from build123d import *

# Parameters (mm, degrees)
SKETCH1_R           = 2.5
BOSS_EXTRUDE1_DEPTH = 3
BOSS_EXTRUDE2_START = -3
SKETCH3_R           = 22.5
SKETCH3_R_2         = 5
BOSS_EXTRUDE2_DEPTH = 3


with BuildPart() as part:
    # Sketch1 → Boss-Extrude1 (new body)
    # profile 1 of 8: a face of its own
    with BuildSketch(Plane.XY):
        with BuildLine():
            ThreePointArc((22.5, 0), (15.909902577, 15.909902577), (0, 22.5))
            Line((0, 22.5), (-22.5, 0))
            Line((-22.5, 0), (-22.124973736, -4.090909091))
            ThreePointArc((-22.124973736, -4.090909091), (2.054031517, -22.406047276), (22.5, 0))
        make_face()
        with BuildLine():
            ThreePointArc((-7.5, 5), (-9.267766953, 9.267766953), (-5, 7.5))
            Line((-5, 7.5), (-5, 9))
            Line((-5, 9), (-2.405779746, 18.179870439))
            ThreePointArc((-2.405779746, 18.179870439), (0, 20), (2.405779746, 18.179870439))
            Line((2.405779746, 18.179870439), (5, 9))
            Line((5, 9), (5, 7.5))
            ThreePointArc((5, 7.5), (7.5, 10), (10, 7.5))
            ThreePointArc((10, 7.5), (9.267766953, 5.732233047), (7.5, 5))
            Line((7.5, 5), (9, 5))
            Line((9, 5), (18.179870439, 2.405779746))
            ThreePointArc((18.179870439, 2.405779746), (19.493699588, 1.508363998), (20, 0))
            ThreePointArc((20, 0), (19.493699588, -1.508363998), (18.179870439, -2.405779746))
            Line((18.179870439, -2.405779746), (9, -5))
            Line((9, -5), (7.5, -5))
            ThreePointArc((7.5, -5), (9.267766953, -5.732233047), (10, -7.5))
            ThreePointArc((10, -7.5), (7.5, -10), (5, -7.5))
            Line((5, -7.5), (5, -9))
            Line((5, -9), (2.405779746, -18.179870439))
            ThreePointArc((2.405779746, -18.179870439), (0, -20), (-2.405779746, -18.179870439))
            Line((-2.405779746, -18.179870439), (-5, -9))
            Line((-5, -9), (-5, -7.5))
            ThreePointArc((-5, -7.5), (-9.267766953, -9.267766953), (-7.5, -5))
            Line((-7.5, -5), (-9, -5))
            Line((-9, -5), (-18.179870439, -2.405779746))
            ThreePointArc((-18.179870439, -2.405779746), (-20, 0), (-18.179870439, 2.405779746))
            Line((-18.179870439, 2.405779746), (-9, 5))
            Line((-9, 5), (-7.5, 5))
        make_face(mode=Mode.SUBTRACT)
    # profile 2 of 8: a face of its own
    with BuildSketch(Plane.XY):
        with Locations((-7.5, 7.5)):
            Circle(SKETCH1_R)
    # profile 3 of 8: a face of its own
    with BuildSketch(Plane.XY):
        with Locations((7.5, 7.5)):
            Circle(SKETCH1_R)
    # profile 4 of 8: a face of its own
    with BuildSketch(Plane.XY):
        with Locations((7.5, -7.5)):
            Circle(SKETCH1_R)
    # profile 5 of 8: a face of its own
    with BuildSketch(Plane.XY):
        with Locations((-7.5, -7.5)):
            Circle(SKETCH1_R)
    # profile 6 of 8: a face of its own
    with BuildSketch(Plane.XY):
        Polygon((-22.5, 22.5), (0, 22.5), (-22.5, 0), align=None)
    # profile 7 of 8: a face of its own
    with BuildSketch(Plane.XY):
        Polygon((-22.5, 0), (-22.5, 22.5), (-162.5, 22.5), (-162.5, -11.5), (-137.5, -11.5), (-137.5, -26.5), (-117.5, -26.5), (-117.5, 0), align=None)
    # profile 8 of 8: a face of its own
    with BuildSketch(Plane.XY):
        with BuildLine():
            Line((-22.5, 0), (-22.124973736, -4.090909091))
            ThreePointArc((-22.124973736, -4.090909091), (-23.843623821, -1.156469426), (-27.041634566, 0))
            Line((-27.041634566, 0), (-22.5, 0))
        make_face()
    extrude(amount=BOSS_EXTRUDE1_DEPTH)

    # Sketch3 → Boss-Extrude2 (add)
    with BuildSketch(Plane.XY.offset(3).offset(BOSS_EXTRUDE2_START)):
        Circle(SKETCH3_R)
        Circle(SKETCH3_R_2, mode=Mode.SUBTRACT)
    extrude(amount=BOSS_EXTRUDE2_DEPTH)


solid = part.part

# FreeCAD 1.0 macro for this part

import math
import FreeCAD as App
import Part
import Sketcher
from FreeCAD import Vector
Q = App.Units.Quantity

doc = App.newDocument("Part")
body = doc.addObject("PartDesign::Body", "Body")

# Sketch on XY plane
sketch1 = body.newObject("Sketcher::SketchObject", "Sketch")
sketch1.AttachmentSupport = (doc.getObject("XY_Plane"), [""])
sketch1.MapMode = "FlatFace"
sketch1.addGeometry([
    Part.ArcOfCircle(Part.Circle(Vector(0, 0, 0), Vector(0, 0, 1), 22.5), math.radians(0), math.radians(90)),  # 0
    Part.LineSegment(Vector(0, 22.5, 0), Vector(-162.5, 22.5, 0)),  # 1
    Part.LineSegment(Vector(-162.5, 22.5, 0), Vector(-162.5, -11.5, 0)),  # 2
    Part.LineSegment(Vector(-162.5, -11.5, 0), Vector(-137.5, -11.5, 0)),  # 3
    Part.LineSegment(Vector(-137.5, -11.5, 0), Vector(-137.5, -26.5, 0)),  # 4
    Part.LineSegment(Vector(-137.5, -26.5, 0), Vector(-117.5, -26.5, 0)),  # 5
    Part.LineSegment(Vector(-117.5, -26.5, 0), Vector(-117.5, 0, 0)),  # 6
    Part.LineSegment(Vector(-117.5, 0, 0), Vector(-27, 0, 0)),  # 7
    Part.ArcOfCircle(Part.Circle(Vector(-27, -5, 0), Vector(0, 0, 1), 5), math.radians(10), math.radians(90)),  # 8
    Part.ArcOfCircle(Part.Circle(Vector(0, 0, 0), Vector(0, 0, 1), 22.5), math.radians(-170), math.radians(0)),  # 9
    Part.LineSegment(Vector(-9, 5, 0), Vector(-7.5, 5, 0)),  # 10
    Part.ArcOfCircle(Part.Circle(Vector(-7.5, 7.5, 0), Vector(0, 0, 1), 2.5), math.radians(-90), math.radians(0)),  # 11
    Part.LineSegment(Vector(-5, 7.5, 0), Vector(-5, 9, 0)),  # 12
    Part.LineSegment(Vector(-5, 9, 0), Vector(-2.4, 18.2, 0)),  # 13
    Part.ArcOfCircle(Part.Circle(Vector(0, 17.5, 0), Vector(0, 0, 1), 2.5), math.radians(16), math.radians(164)),  # 14
    Part.LineSegment(Vector(2.4, 18.2, 0), Vector(5, 9, 0)),  # 15
    Part.LineSegment(Vector(5, 9, 0), Vector(5, 7.5, 0)),  # 16
    Part.ArcOfCircle(Part.Circle(Vector(7.5, 7.5, 0), Vector(0, 0, 1), 2.5), math.radians(180), math.radians(270)),  # 17
    Part.LineSegment(Vector(7.5, 5, 0), Vector(9, 5, 0)),  # 18
    Part.LineSegment(Vector(9, 5, 0), Vector(18.2, 2.4, 0)),  # 19
    Part.ArcOfCircle(Part.Circle(Vector(17.5, 0, 0), Vector(0, 0, 1), 2.5), math.radians(0), math.radians(74)),  # 20
    Part.ArcOfCircle(Part.Circle(Vector(17.5, 0, 0), Vector(0, 0, 1), 2.5), math.radians(-74), math.radians(0)),  # 21
    Part.LineSegment(Vector(18.2, -2.4, 0), Vector(9, -5, 0)),  # 22
    Part.LineSegment(Vector(9, -5, 0), Vector(7.5, -5, 0)),  # 23
    Part.ArcOfCircle(Part.Circle(Vector(7.5, -7.5, 0), Vector(0, 0, 1), 2.5), math.radians(90), math.radians(180)),  # 24
    Part.LineSegment(Vector(5, -7.5, 0), Vector(5, -9, 0)),  # 25
    Part.LineSegment(Vector(5, -9, 0), Vector(2.4, -18.2, 0)),  # 26
    Part.ArcOfCircle(Part.Circle(Vector(0, -17.5, 0), Vector(0, 0, 1), 2.5), math.radians(-164), math.radians(-16)),  # 27
    Part.LineSegment(Vector(-2.4, -18.2, 0), Vector(-5, -9, 0)),  # 28
    Part.LineSegment(Vector(-5, -9, 0), Vector(-5, -7.5, 0)),  # 29
    Part.ArcOfCircle(Part.Circle(Vector(-7.5, -7.5, 0), Vector(0, 0, 1), 2.5), math.radians(0), math.radians(90)),  # 30
    Part.LineSegment(Vector(-7.5, -5, 0), Vector(-9, -5, 0)),  # 31
    Part.LineSegment(Vector(-9, -5, 0), Vector(-18.2, -2.4, 0)),  # 32
    Part.ArcOfCircle(Part.Circle(Vector(-17.5, 0, 0), Vector(0, 0, 1), 2.5), math.radians(106), math.radians(254)),  # 33
    Part.LineSegment(Vector(-18.2, 2.4, 0), Vector(-9, 5, 0)),  # 34
], False)
sketch1.addConstraint([
    Sketcher.Constraint("Tangent", 0, 2, 1, 1),
    Sketcher.Constraint("Coincident", 1, 2, 2, 1),
    Sketcher.Constraint("Coincident", 2, 2, 3, 1),
    Sketcher.Constraint("Coincident", 3, 2, 4, 1),
    Sketcher.Constraint("Coincident", 4, 2, 5, 1),
    Sketcher.Constraint("Coincident", 5, 2, 6, 1),
    Sketcher.Constraint("Coincident", 6, 2, 7, 1),
    Sketcher.Constraint("Tangent", 7, 2, 8, 2),
    Sketcher.Constraint("Tangent", 8, 1, 9, 1),
    Sketcher.Constraint("Tangent", 9, 2, 0, 1),
    Sketcher.Constraint("Tangent", 10, 2, 11, 1),
    Sketcher.Constraint("Tangent", 11, 2, 12, 1),
    Sketcher.Constraint("Coincident", 12, 2, 13, 1),
    Sketcher.Constraint("Tangent", 13, 2, 14, 2),
    Sketcher.Constraint("Tangent", 14, 1, 15, 1),
    Sketcher.Constraint("Coincident", 15, 2, 16, 1),
    Sketcher.Constraint("Tangent", 16, 2, 17, 1),
    Sketcher.Constraint("Tangent", 17, 2, 18, 1),
    Sketcher.Constraint("Coincident", 18, 2, 19, 1),
    Sketcher.Constraint("Tangent", 19, 2, 20, 2),
    Sketcher.Constraint("Tangent", 20, 1, 21, 2),
    Sketcher.Constraint("Tangent", 21, 1, 22, 1),
    Sketcher.Constraint("Coincident", 22, 2, 23, 1),
    Sketcher.Constraint("Tangent", 23, 2, 24, 1),
    Sketcher.Constraint("Tangent", 24, 2, 25, 1),
    Sketcher.Constraint("Coincident", 25, 2, 26, 1),
    Sketcher.Constraint("Tangent", 26, 2, 27, 2),
    Sketcher.Constraint("Tangent", 27, 1, 28, 1),
    Sketcher.Constraint("Coincident", 28, 2, 29, 1),
    Sketcher.Constraint("Tangent", 29, 2, 30, 1),
    Sketcher.Constraint("Tangent", 30, 2, 31, 1),
    Sketcher.Constraint("Coincident", 31, 2, 32, 1),
    Sketcher.Constraint("Tangent", 32, 2, 33, 2),
    Sketcher.Constraint("Tangent", 33, 1, 34, 1),
    Sketcher.Constraint("Coincident", 34, 2, 10, 1),
    Sketcher.Constraint("Horizontal", 1),
    Sketcher.Constraint("Vertical", 2),
    Sketcher.Constraint("Horizontal", 3),
    Sketcher.Constraint("Vertical", 4),
    Sketcher.Constraint("Horizontal", 5),
    Sketcher.Constraint("Vertical", 6),
    Sketcher.Constraint("Horizontal", 7),
    Sketcher.Constraint("Horizontal", 10),
    Sketcher.Constraint("Vertical", 12),
    Sketcher.Constraint("Vertical", 16),
    Sketcher.Constraint("Horizontal", 18),
    Sketcher.Constraint("Horizontal", 23),
    Sketcher.Constraint("Vertical", 25),
    Sketcher.Constraint("Vertical", 29),
    Sketcher.Constraint("Horizontal", 31),
    Sketcher.Constraint("Coincident", 0, 3, -1, 1),
    Sketcher.Constraint("Equal", 0, 9),
    Sketcher.Constraint("Equal", 11, 14),
    Sketcher.Constraint("Equal", 14, 17),
    Sketcher.Constraint("Equal", 17, 20),
    Sketcher.Constraint("Equal", 20, 21),
    Sketcher.Constraint("Equal", 21, 24),
    Sketcher.Constraint("Equal", 24, 27),
    Sketcher.Constraint("Equal", 27, 30),
    Sketcher.Constraint("Equal", 30, 33),
    Sketcher.Constraint("Symmetric", 11, 3, 24, 3, -1, 1),
    Sketcher.Constraint("Symmetric", 14, 3, 27, 3, -1, 1),
    Sketcher.Constraint("Symmetric", 17, 3, 30, 3, -1, 1),
    Sketcher.Constraint("Symmetric", 20, 3, 33, 3, -1, 1),
    Sketcher.Constraint("Symmetric", 11, 3, 17, 3, -2),
    Sketcher.Constraint("Symmetric", 13, 2, 14, 1, -2),
    Sketcher.Constraint("Symmetric", 21, 1, 32, 2, -2),
    Sketcher.Constraint("PointOnObject", 6, 2, -1),
    Sketcher.Constraint("PointOnObject", 9, 2, -1),
    Sketcher.Constraint("PointOnObject", 20, 1, -1),
    Sketcher.Constraint("Perpendicular", 13, 19),
    Sketcher.Constraint("Perpendicular", 15, 22),
    Sketcher.Constraint("Perpendicular", 19, 26),
    Sketcher.Constraint("Perpendicular", 22, 28),
    Sketcher.Constraint("Perpendicular", 28, 34),
    Sketcher.Constraint("Horizontal", 8, 3, 22, 2),
    Sketcher.Constraint("Equal", 31, 12),
    Sketcher.Constraint("Equal", 15, 19),
    Sketcher.Constraint("Radius", 8, Q("5 mm")),
    Sketcher.Constraint("Radius", 0, Q("22.5 mm")),
    Sketcher.Constraint("Radius", 11, Q("2.5 mm")),
    Sketcher.Constraint("DistanceX", 3, 1, 3, 2, Q("25 mm")),
    Sketcher.Constraint("DistanceX", 5, 1, 5, 2, Q("20 mm")),
    Sketcher.Constraint("DistanceY", 2, 2, 2, 1, Q("34 mm")),
    Sketcher.Constraint("DistanceY", 4, 2, 4, 1, Q("15 mm")),
    Sketcher.Constraint("DistanceX", 1, 2, 1, 1, Q("162.5 mm")),
    Sketcher.Constraint("DistanceX", 10, 1, 10, 2, Q("1.5 mm")),
    Sketcher.Constraint("DistanceX", -1, 1, 20, 1, Q("20 mm")),
])
pad1 = body.newObject("PartDesign::Pad", "Pad")
pad1.Profile = sketch1
pad1.Length = 3

# Sketch on XY plane
sketch2 = body.newObject("Sketcher::SketchObject", "Sketch001")
sketch2.AttachmentSupport = (doc.getObject("XY_Plane"), [""])
sketch2.MapMode = "FlatFace"
sketch2.addGeometry([
    Part.Circle(Vector(0, 0, 0), Vector(0, 0, 1), 22),
    Part.Circle(Vector(0, 0, 0), Vector(0, 0, 1), 5),
], False)
sketch2.addConstraint([
    Sketcher.Constraint("Coincident", 0, 3, -1, 1),
    Sketcher.Constraint("Coincident", 1, 3, -1, 1),
    Sketcher.Constraint("Diameter", 0, Q("45 mm")),
    Sketcher.Constraint("Diameter", 1, Q("10 mm")),
])
pad2 = body.newObject("PartDesign::Pad", "Pad001")
pad2.Profile = sketch2
pad2.Length = 3

doc.recompute()
